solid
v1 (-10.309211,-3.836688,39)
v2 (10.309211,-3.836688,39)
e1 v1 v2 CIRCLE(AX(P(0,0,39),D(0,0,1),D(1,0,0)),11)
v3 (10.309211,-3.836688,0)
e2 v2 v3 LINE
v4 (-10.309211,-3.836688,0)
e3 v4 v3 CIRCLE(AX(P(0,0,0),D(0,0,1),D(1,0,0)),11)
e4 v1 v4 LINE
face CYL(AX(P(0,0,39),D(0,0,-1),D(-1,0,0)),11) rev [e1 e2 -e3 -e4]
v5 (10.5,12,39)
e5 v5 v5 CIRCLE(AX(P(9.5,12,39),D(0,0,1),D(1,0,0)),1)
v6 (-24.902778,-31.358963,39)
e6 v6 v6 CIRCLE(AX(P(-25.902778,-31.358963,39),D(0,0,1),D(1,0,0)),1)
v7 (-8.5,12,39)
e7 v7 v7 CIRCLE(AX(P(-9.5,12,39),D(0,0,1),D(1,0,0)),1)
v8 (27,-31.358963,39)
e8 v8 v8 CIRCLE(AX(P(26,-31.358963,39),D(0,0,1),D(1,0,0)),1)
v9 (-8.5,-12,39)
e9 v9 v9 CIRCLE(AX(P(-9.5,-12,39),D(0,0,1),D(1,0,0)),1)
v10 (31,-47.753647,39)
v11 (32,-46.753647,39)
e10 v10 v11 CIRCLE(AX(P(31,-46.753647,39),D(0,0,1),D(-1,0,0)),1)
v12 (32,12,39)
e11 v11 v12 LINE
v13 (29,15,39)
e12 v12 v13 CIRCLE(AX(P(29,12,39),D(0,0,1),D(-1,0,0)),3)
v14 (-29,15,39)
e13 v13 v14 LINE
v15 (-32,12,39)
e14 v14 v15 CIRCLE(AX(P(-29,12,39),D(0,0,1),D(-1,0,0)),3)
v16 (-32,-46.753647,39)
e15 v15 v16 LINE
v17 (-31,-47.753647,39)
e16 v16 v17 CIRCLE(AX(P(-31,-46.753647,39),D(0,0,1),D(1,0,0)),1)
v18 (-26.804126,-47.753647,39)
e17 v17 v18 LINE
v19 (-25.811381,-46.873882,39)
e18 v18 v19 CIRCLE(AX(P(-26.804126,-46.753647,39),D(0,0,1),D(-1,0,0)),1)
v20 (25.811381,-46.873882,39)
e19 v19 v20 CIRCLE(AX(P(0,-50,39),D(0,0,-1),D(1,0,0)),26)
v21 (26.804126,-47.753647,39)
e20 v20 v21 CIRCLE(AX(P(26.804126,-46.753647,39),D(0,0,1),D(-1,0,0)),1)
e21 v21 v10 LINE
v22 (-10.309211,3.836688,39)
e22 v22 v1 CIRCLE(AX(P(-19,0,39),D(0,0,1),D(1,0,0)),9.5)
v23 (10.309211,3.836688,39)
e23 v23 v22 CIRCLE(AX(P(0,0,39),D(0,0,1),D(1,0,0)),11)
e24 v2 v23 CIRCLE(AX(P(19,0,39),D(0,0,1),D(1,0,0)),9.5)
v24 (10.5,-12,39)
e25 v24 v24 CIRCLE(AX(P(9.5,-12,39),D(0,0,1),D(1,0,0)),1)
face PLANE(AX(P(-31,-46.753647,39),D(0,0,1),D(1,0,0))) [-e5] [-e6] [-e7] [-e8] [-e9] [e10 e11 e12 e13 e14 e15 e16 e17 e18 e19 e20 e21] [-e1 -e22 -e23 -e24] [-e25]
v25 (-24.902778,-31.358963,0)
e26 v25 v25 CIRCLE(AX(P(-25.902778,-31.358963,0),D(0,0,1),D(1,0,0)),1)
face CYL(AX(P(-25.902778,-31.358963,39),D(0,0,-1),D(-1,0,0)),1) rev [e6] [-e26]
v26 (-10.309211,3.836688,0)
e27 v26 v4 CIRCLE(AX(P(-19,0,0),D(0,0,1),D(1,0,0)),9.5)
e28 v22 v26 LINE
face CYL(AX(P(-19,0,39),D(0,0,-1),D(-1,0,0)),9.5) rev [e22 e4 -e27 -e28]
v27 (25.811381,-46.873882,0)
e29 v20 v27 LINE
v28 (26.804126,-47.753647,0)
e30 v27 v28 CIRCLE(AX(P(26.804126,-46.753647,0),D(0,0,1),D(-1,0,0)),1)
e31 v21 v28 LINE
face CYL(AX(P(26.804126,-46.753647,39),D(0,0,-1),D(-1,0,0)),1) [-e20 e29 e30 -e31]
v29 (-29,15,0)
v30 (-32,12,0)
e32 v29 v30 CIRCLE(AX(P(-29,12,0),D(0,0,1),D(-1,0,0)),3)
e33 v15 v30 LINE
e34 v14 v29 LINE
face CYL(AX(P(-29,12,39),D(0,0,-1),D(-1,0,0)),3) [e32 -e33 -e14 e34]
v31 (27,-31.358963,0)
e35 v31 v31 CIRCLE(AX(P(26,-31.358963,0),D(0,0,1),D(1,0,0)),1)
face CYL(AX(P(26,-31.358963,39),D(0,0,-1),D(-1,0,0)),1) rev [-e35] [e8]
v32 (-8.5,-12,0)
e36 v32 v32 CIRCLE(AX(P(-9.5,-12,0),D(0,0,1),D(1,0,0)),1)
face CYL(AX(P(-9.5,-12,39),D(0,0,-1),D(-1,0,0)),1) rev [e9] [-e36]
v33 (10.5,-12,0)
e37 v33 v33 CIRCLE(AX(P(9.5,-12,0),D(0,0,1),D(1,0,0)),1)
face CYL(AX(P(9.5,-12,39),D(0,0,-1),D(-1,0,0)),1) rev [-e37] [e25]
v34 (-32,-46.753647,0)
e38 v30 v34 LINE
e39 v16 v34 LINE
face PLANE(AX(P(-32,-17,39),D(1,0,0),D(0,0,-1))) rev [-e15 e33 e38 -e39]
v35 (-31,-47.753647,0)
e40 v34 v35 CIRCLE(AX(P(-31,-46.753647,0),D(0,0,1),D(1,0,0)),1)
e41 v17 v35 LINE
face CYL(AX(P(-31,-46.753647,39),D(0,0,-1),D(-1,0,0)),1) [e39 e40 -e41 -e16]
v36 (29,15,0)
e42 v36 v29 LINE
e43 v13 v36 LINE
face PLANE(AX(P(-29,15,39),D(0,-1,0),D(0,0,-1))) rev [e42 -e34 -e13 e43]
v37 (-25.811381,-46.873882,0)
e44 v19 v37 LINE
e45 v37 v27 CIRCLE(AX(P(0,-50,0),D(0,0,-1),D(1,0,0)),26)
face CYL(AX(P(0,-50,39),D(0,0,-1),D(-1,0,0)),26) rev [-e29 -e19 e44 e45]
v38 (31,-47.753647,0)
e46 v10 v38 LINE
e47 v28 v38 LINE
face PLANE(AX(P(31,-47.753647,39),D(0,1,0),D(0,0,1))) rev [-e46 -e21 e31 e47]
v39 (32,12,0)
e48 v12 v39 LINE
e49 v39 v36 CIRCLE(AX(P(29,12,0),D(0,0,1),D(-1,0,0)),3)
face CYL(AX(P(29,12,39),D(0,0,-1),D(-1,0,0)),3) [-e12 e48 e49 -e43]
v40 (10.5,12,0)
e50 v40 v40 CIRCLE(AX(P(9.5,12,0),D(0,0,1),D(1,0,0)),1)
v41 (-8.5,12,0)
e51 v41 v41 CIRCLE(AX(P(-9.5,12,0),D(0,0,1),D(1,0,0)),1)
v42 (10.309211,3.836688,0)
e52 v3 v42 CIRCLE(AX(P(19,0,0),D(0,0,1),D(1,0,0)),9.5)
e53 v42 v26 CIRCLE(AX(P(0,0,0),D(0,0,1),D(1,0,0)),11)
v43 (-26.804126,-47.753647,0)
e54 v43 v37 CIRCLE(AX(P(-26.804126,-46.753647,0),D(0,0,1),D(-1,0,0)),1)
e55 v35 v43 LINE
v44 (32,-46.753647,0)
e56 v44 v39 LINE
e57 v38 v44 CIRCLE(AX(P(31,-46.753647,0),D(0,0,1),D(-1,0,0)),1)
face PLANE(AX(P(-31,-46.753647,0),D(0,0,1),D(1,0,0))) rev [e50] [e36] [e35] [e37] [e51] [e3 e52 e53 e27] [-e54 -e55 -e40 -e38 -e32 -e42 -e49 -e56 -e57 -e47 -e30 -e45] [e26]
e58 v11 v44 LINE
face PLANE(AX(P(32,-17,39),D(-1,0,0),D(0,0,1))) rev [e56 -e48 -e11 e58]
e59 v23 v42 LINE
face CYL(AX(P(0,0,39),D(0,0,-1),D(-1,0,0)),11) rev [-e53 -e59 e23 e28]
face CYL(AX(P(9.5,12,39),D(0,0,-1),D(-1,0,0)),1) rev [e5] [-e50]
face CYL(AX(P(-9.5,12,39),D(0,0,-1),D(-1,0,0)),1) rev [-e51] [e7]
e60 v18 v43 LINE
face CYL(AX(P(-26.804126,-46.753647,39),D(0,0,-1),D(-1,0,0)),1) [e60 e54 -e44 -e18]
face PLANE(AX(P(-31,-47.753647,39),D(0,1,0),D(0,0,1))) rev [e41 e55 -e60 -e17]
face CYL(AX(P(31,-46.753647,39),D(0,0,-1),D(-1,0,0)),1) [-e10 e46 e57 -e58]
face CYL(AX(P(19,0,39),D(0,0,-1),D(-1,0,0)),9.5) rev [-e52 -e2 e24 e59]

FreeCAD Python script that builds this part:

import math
import FreeCAD as App
import Part
import Sketcher

V = App.Vector
Q = App.Units.Quantity

doc = App.newDocument("Part")
body = doc.addObject("PartDesign::Body", "Body")

# Sketch on XY plane
sketch1 = body.newObject("Sketcher::SketchObject", "Sketch")
sketch1.AttachmentSupport = (doc.getObject("XY_Plane"), [""])
sketch1.MapMode = "FlatFace"
sketch1.addGeometry([
    Part.ArcOfCircle(Part.Circle(V(-29, 12, 0), V(0, 0, 1), 3), math.radians(90), math.radians(180)),  # 0
    Part.LineSegment(V(-32, 12, 0), V(-32, -46.753647, 0)),  # 1
    Part.ArcOfCircle(Part.Circle(V(-31, -46.753647, 0), V(0, 0, 1), 1), math.radians(-180), math.radians(-90)),  # 2
    Part.LineSegment(V(-31, -47.753647, 0), V(-26.804126, -47.753647, 0)),  # 3
    Part.ArcOfCircle(Part.Circle(V(-26.804126, -46.753647, 0), V(0, 0, 1), 1), math.radians(-90), math.radians(-6.905683)),  # 4
    Part.ArcOfCircle(Part.Circle(V(0, -50, 0), V(0, 0, 1), 26), math.radians(6.905683), math.radians(173.094317)),  # 5
    Part.ArcOfCircle(Part.Circle(V(26.804126, -46.753647, 0), V(0, 0, 1), 1), math.radians(-173.094317), math.radians(-90)),  # 6
    Part.LineSegment(V(26.804126, -47.753647, 0), V(31, -47.753647, 0)),  # 7
    Part.ArcOfCircle(Part.Circle(V(31, -46.753647, 0), V(0, 0, 1), 1), math.radians(-90), math.radians(0)),  # 8
    Part.LineSegment(V(32, -46.753647, 0), V(32, 12, 0)),  # 9
    Part.ArcOfCircle(Part.Circle(V(29, 12, 0), V(0, 0, 1), 3), math.radians(0), math.radians(90)),  # 10
    Part.LineSegment(V(29, 15, 0), V(-29, 15, 0)),  # 11
    Part.Circle(V(26, -31.358963, 0), V(0, 0, 1), 1),  # 12
    Part.Circle(V(9.5, -12, 0), V(0, 0, 1), 1),  # 13
    Part.Circle(V(-25.902778, -31.358963, 0), V(0, 0, 1), 1),  # 14
    Part.Circle(V(-9.5, -12, 0), V(0, 0, 1), 1),  # 15
    Part.Circle(V(9.5, 12, 0), V(0, 0, 1), 1),  # 16
    Part.ArcOfCircle(Part.Circle(V(-19, 0, 0), V(0, 0, 1), 9.5), math.radians(23.81983), math.radians(336.18017)),  # 17
    Part.ArcOfCircle(Part.Circle(V(0, 0, 0), V(0, 0, 1), 11), math.radians(20.413315), math.radians(159.586685)),  # 18
    Part.ArcOfCircle(Part.Circle(V(19, 0, 0), V(0, 0, 1), 9.5), math.radians(-156.18017), math.radians(156.18017)),  # 19
    Part.ArcOfCircle(Part.Circle(V(0, 0, 0), V(0, 0, 1), 11), math.radians(-159.586685), math.radians(-20.413315)),  # 20
    Part.Circle(V(-9.5, 12, 0), V(0, 0, 1), 1),  # 21
], False)
sketch1.addConstraint([
    Sketcher.Constraint("Tangent", 0, 2, 1, 1),
    Sketcher.Constraint("Tangent", 1, 2, 2, 1),
    Sketcher.Constraint("Tangent", 2, 2, 3, 1),
    Sketcher.Constraint("Tangent", 3, 2, 4, 1),
    Sketcher.Constraint("Tangent", 4, 2, 5, 2),
    Sketcher.Constraint("Tangent", 5, 1, 6, 1),
    Sketcher.Constraint("Tangent", 6, 2, 7, 1),
    Sketcher.Constraint("Tangent", 7, 2, 8, 1),
    Sketcher.Constraint("Tangent", 8, 2, 9, 1),
    Sketcher.Constraint("Tangent", 9, 2, 10, 1),
    Sketcher.Constraint("Tangent", 10, 2, 11, 1),
    Sketcher.Constraint("Tangent", 11, 2, 0, 1),
    Sketcher.Constraint("Coincident", 17, 1, 18, 2),
    Sketcher.Constraint("Coincident", 18, 1, 19, 2),
    Sketcher.Constraint("Coincident", 19, 1, 20, 2),
    Sketcher.Constraint("Coincident", 20, 1, 17, 2),
    Sketcher.Constraint("Vertical", 1),
    Sketcher.Constraint("Horizontal", 3),
    Sketcher.Constraint("Horizontal", 7),
    Sketcher.Constraint("Vertical", 9),
    Sketcher.Constraint("Horizontal", 11),
    Sketcher.Constraint("Coincident", 18, 3, -1, 1),
    Sketcher.Constraint("Coincident", 20, 3, -1, 1),
    Sketcher.Constraint("Equal", 2, 4),
    Sketcher.Constraint("Equal", 4, 6),
    Sketcher.Constraint("Equal", 6, 8),
    Sketcher.Constraint("Equal", 0, 10),
    Sketcher.Constraint("Equal", 8, 12),
    Sketcher.Constraint("Equal", 12, 13),
    Sketcher.Constraint("Equal", 13, 14),
    Sketcher.Constraint("Equal", 14, 15),
    Sketcher.Constraint("Equal", 15, 16),
    Sketcher.Constraint("Equal", 17, 19),
    Sketcher.Constraint("Equal", 18, 20),
    Sketcher.Constraint("Equal", 16, 21),
    Sketcher.Constraint("Symmetric", 15, 3, 16, 3, -1, 1),
    Sketcher.Constraint("Symmetric", 17, 3, 19, 3, -1, 1),
    Sketcher.Constraint("Symmetric", 13, 3, 21, 3, -1, 1),
    Sketcher.Constraint("Symmetric", 4, 3, 6, 3, -2),
    Sketcher.Constraint("Symmetric", 13, 3, 15, 3, -2),
    Sketcher.Constraint("PointOnObject", 17, 3, -1),
    Sketcher.Constraint("Horizontal", 12, 3, 14, 3),
    Sketcher.Constraint("Horizontal", 10, 3, 16, 3),
    Sketcher.Constraint("Equal", 3, 7),
    Sketcher.Constraint("Diameter", 12, Q("2 mm")),
    Sketcher.Constraint("Radius", 0, Q("3 mm")),
    Sketcher.Constraint("Radius", 5, Q("26 mm")),
    Sketcher.Constraint("Radius", 18, Q("11 mm")),
    Sketcher.Constraint("Radius", 17, Q("9.5 mm")),
    Sketcher.Constraint("DistanceX", 11, 2, 11, 1, Q("58 mm")),
    Sketcher.Constraint("DistanceY", -1, 1, 0, 3, Q("12 mm")),
    Sketcher.Constraint("DistanceY", 5, 3, -1, 1, Q("50 mm")),
    Sketcher.Constraint("DistanceX", -1, 1, 12, 3, Q("26 mm")),
    Sketcher.Constraint("DistanceX", 17, 3, -1, 1, Q("19 mm")),
    Sketcher.Constraint("DistanceX", 15, 3, 13, 3, Q("19 mm")),
    Sketcher.Constraint("DistanceX", 3, 1, 3, 2, Q("4.195874 mm")),
    Sketcher.Constraint("DistanceX", 4, 3, 14, 3, Q("0.901349 mm")),
    Sketcher.Constraint("DistanceY", 5, 1, 12, 3, Q("15.514919 mm")),
])
pad1 = body.newObject("PartDesign::Pad", "Pad")
pad1.Profile = sketch1
pad1.Length = 39

doc.recompute()
